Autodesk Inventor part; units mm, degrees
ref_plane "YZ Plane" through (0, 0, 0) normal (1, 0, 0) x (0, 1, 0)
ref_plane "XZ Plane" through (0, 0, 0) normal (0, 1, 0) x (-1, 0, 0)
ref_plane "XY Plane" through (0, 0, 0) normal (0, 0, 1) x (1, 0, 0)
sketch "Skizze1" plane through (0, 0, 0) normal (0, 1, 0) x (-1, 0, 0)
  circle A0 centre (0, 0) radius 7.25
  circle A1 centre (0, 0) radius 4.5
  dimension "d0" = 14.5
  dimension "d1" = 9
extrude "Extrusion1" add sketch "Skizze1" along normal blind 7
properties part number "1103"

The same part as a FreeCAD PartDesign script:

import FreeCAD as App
import Part
import Sketcher
from FreeCAD import Vector

doc = App.newDocument("Part")
params = doc.addObject("Spreadsheet::Sheet", "Params")
for row, (alias, value) in enumerate([
    ("sketch1_diameter", "9 mm"),
    ("sketch1_diameter2", "14.5 mm"),
    ("pad1_length", "7 mm"),
], start=1):
    params.set(f"A{row}", alias)
    params.set(f"B{row}", "=" + value)
    params.setAlias(f"B{row}", alias)

body = doc.addObject("PartDesign::Body", "Body")

sketch1 = body.newObject("Sketcher::SketchObject", "Sketch")
sketch1.AttachmentSupport = (doc.getObject("XZ_Plane"), [""])
sketch1.MapMode = "FlatFace"
sketch1.addGeometry([
    Part.Circle(Vector(0, 0, 0), Vector(0, 0, 1), 7.25),
    Part.Circle(Vector(0, 0, 0), Vector(0, 0, 1), 4.5),
], False)
sketch1.addConstraint([
    Sketcher.Constraint("Coincident", 0, 3, -1, 1),
    Sketcher.Constraint("Coincident", 1, 3, -1, 1),
    Sketcher.Constraint("Diameter", 1, 9.0),
    Sketcher.Constraint("Diameter", 0, 14.5),
])
sketch1.setExpression("Constraints[2]", "Params.sketch1_diameter")
sketch1.setExpression("Constraints[3]", "Params.sketch1_diameter2")
pad1 = body.newObject("PartDesign::Pad", "Pad")
pad1.Profile = sketch1
pad1.setExpression("Length", "Params.pad1_length")
pad1.Reversed = True

doc.recompute()
